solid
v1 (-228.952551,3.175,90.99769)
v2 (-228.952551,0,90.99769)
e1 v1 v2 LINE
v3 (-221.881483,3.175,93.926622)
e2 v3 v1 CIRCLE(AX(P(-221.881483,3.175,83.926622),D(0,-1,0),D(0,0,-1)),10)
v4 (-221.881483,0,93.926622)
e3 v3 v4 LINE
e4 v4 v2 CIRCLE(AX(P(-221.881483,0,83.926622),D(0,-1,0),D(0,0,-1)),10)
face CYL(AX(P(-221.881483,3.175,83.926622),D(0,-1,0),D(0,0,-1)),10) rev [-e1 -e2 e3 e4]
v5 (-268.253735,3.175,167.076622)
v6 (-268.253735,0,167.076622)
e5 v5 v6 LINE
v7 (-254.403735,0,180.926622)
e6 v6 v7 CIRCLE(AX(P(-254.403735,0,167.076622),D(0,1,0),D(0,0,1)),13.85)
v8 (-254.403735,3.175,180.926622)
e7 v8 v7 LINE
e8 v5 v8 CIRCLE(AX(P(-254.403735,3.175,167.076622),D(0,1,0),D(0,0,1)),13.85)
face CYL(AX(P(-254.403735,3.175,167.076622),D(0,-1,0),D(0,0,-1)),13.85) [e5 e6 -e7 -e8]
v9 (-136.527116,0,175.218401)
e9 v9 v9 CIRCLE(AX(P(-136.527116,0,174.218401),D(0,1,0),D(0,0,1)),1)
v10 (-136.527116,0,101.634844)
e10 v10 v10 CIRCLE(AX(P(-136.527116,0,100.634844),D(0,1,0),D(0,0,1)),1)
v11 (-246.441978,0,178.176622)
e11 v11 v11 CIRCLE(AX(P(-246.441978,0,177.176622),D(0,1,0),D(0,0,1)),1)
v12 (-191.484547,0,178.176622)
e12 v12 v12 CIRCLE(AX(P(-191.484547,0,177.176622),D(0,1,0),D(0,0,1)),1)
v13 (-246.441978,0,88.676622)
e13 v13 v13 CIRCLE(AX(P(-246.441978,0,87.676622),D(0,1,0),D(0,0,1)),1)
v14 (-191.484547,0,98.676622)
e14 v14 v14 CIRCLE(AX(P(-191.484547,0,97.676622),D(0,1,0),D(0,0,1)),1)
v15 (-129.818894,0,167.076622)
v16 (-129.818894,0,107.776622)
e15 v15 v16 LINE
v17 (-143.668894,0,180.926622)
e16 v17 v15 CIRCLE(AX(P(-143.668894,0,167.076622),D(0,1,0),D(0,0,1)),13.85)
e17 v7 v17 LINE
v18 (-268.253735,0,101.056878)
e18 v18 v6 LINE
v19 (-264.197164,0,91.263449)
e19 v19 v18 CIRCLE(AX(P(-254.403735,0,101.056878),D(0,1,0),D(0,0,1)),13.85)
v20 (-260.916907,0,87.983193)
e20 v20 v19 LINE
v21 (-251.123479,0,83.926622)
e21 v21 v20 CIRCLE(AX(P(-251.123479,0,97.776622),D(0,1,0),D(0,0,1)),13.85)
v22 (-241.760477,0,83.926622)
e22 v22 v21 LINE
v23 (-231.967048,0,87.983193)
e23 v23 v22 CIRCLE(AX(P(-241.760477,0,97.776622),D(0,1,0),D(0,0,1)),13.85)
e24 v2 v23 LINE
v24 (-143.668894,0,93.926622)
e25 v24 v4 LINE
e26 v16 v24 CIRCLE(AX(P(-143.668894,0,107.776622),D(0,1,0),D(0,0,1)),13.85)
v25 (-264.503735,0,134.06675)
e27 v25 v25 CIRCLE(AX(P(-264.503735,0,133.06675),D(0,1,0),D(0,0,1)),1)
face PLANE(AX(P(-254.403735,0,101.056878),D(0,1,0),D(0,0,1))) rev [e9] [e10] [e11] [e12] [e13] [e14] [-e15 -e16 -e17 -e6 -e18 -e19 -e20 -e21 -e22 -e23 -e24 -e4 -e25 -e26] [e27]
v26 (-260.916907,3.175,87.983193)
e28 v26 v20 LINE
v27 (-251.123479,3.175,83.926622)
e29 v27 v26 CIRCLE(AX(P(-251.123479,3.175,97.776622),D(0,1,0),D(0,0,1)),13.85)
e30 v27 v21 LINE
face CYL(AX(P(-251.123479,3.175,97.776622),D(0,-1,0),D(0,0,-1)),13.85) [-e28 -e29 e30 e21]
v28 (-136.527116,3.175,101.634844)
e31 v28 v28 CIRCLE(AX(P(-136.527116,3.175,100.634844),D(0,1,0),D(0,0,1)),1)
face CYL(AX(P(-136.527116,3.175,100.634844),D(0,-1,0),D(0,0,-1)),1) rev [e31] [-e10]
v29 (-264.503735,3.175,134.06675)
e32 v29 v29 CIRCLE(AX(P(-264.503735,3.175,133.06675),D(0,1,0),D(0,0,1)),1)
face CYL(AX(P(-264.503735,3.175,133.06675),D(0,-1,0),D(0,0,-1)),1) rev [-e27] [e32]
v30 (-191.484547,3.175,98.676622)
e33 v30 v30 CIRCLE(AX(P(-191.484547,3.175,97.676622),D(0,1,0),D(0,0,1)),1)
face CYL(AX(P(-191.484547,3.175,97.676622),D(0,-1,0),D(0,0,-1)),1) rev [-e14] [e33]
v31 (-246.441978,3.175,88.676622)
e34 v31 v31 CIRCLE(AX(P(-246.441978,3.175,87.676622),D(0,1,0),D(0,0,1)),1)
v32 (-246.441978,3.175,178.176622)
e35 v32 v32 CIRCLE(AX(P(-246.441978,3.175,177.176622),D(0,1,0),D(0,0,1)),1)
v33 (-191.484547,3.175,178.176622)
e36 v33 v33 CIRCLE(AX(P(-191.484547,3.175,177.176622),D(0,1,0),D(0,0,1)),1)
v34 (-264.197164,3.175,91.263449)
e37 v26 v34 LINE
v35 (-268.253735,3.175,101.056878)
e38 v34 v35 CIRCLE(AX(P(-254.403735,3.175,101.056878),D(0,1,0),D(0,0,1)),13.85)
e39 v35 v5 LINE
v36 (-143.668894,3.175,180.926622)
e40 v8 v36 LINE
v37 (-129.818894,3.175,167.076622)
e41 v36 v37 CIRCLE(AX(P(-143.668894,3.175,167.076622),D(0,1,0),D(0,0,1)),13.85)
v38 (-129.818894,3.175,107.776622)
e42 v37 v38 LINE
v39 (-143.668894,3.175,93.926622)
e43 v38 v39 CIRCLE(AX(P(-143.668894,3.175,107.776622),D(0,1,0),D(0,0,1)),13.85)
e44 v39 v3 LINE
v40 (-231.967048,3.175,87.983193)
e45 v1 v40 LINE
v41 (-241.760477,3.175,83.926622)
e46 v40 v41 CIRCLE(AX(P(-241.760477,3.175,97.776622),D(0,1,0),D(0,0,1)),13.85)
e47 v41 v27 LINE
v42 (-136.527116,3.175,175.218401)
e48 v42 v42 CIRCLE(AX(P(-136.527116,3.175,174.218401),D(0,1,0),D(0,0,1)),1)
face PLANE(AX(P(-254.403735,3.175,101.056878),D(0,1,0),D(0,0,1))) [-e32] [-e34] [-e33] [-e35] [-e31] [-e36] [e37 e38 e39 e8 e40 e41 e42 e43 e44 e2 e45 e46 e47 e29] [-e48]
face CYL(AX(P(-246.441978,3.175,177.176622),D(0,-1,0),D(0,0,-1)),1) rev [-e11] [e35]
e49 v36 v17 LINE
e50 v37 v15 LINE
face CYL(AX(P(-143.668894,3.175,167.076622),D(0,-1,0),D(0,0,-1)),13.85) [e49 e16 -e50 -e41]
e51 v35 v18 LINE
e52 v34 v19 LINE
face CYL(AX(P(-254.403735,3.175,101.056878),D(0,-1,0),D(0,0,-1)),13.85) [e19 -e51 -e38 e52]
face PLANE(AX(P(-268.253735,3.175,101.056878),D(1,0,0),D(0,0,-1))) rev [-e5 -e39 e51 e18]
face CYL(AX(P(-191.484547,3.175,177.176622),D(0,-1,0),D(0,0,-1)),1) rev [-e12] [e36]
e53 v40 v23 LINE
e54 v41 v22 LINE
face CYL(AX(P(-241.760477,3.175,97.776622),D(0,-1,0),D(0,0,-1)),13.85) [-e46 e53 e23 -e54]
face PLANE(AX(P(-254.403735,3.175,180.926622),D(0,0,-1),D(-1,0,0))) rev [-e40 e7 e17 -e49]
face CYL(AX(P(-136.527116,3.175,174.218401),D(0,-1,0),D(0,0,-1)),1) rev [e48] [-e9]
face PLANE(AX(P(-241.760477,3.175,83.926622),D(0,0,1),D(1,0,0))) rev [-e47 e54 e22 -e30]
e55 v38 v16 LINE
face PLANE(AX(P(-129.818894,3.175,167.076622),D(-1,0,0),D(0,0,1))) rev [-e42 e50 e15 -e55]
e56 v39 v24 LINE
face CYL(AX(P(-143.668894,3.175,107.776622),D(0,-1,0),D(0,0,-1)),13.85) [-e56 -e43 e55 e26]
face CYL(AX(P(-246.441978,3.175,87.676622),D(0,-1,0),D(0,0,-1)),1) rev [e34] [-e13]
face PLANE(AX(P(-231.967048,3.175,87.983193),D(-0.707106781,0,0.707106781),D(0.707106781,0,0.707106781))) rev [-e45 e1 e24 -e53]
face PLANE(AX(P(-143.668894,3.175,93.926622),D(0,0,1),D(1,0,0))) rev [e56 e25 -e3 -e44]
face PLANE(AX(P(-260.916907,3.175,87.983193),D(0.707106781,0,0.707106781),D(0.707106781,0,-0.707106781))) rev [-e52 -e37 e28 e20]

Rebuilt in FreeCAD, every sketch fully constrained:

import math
import FreeCAD as App
import Part
import Sketcher

doc = App.newDocument("Part")
body = doc.addObject("PartDesign::Body", "Body")

# Sketch on XZ plane
sketch1 = body.newObject("Sketcher::SketchObject", "Sketch")
sketch1.AttachmentSupport = (doc.getObject("XZ_Plane"), [""])
sketch1.MapMode = "FlatFace"
sketch1.addGeometry([
    Part.LineSegment(App.Vector(-268.3, 101.1, 0), App.Vector(-268.3, 167.1, 0)),  # 0
    Part.ArcOfCircle(Part.Circle(App.Vector(-254.4, 167.1, 0), App.Vector(0, 0, 1), 13.8), math.radians(90), math.radians(180)),  # 1
    Part.LineSegment(App.Vector(-254.4, 180.9, 0), App.Vector(-143.7, 180.9, 0)),  # 2
    Part.ArcOfCircle(Part.Circle(App.Vector(-143.7, 167.1, 0), App.Vector(0, 0, 1), 13.8), math.radians(0), math.radians(90)),  # 3
    Part.LineSegment(App.Vector(-129.8, 167.1, 0), App.Vector(-129.8, 107.8, 0)),  # 4
    Part.ArcOfCircle(Part.Circle(App.Vector(-143.7, 107.8, 0), App.Vector(0, 0, 1), 13.8), math.radians(-90), math.radians(0)),  # 5
    Part.LineSegment(App.Vector(-143.7, 93.9, 0), App.Vector(-221.9, 93.9, 0)),  # 6
    Part.ArcOfCircle(Part.Circle(App.Vector(-221.9, 83.9, 0), App.Vector(0, 0, 1), 10), math.radians(90), math.radians(135)),  # 7
    Part.LineSegment(App.Vector(-229, 91, 0), App.Vector(-232, 88, 0)),  # 8
    Part.ArcOfCircle(Part.Circle(App.Vector(-241.8, 97.8, 0), App.Vector(0, 0, 1), 13.9), math.radians(-90), math.radians(-45)),  # 9
    Part.LineSegment(App.Vector(-241.8, 83.9, 0), App.Vector(-251.1, 83.9, 0)),  # 10
    Part.ArcOfCircle(Part.Circle(App.Vector(-251.1, 97.8, 0), App.Vector(0, 0, 1), 13.8), math.radians(-135), math.radians(-90)),  # 11
    Part.LineSegment(App.Vector(-260.9, 88, 0), App.Vector(-264.2, 91.3, 0)),  # 12
    Part.ArcOfCircle(Part.Circle(App.Vector(-254.4, 101.1, 0), App.Vector(0, 0, 1), 13.8), math.radians(-180), math.radians(-135)),  # 13
    Part.Circle(App.Vector(-246.4, 177.2, 0), App.Vector(0, 0, 1), 1),  # 14
    Part.Circle(App.Vector(-264.5, 133.1, 0), App.Vector(0, 0, 1), 1),  # 15
    Part.Circle(App.Vector(-191.5, 177.2, 0), App.Vector(0, 0, 1), 1),  # 16
    Part.Circle(App.Vector(-136.5, 174.2, 0), App.Vector(0, 0, 1), 1),  # 17
    Part.Circle(App.Vector(-246.4, 87.7, 0), App.Vector(0, 0, 1), 1),  # 18
    Part.Circle(App.Vector(-191.5, 97.7, 0), App.Vector(0, 0, 1), 1),  # 19
    Part.Circle(App.Vector(-136.5, 100.6, 0), App.Vector(0, 0, 1), 1),  # 20
], False)
sketch1.addConstraint([
    Sketcher.Constraint("Tangent", 0, 2, 1, 2),
    Sketcher.Constraint("Tangent", 1, 1, 2, 1),
    Sketcher.Constraint("Tangent", 2, 2, 3, 2),
    Sketcher.Constraint("Tangent", 3, 1, 4, 1),
    Sketcher.Constraint("Tangent", 4, 2, 5, 2),
    Sketcher.Constraint("Tangent", 5, 1, 6, 1),
    Sketcher.Constraint("Tangent", 6, 2, 7, 1),
    Sketcher.Constraint("Tangent", 7, 2, 8, 1),
    Sketcher.Constraint("Tangent", 8, 2, 9, 2),
    Sketcher.Constraint("Tangent", 9, 1, 10, 1),
    Sketcher.Constraint("Tangent", 10, 2, 11, 2),
    Sketcher.Constraint("Tangent", 11, 1, 12, 1),
    Sketcher.Constraint("Tangent", 12, 2, 13, 2),
    Sketcher.Constraint("Tangent", 13, 1, 0, 1),
    Sketcher.Constraint("Vertical", 0),
    Sketcher.Constraint("Horizontal", 2),
    Sketcher.Constraint("Vertical", 4),
    Sketcher.Constraint("Horizontal", 6),
    Sketcher.Constraint("Horizontal", 10),
    Sketcher.Constraint("Equal", 1, 3),
    Sketcher.Constraint("Equal", 3, 5),
    Sketcher.Constraint("Equal", 5, 9),
    Sketcher.Constraint("Equal", 9, 11),
    Sketcher.Constraint("Equal", 11, 13),
    Sketcher.Constraint("Equal", 14, 15),
    Sketcher.Constraint("Equal", 15, 16),
    Sketcher.Constraint("Equal", 16, 17),
    Sketcher.Constraint("Equal", 17, 18),
    Sketcher.Constraint("Equal", 18, 19),
    Sketcher.Constraint("Equal", 19, 20),
    Sketcher.Constraint("Perpendicular", 8, 12),
    Sketcher.Constraint("Horizontal", 14, 3, 16, 3),
    Sketcher.Constraint("Horizontal", 7, 3, 9, 1),
    Sketcher.Constraint("Horizontal", 8, 2, 11, 1),
    Sketcher.Constraint("Vertical", 14, 3, 18, 3),
    Sketcher.Constraint("Vertical", 16, 3, 19, 3),
    Sketcher.Constraint("Vertical", 17, 3, 20, 3),
    Sketcher.Constraint("Diameter", 14, 2.0),
    Sketcher.Constraint("Radius", 7, 10.0),
    Sketcher.Constraint("Radius", 1, 13.85),
    Sketcher.Constraint("DistanceY", 4, 2, 4, 1, 59.3),
    Sketcher.Constraint("DistanceY", 18, 3, 19, 3, 10.0),
    Sketcher.Constraint("DistanceY", 1, 3, 14, 3, 10.1),
    Sketcher.Constraint("DistanceX", 15, 3, 13, 3, 10.1),
    Sketcher.Constraint("DistanceY", 18, 3, 11, 3, 10.1),
    Sketcher.Constraint("DistanceX", 2, 1, 2, 2, 110.73484),
    Sketcher.Constraint("DistanceX", 6, 2, 6, 1, 78.212589),
    Sketcher.Constraint("DistanceY", -1, 1, 17, 3, 174.218401),
    Sketcher.Constraint("DistanceX", 14, 3, 9, 3, 4.681501),
    Sketcher.Constraint("DistanceX", 11, 3, 14, 3, 4.681501),
    Sketcher.Constraint("DistanceX", 11, 3, -1, 1, 251.123479),
    Sketcher.Constraint("DistanceY", -1, 1, 13, 3, 101.056878),
    Sketcher.Constraint("DistanceY", -1, 1, 15, 3, 133.06675),
    Sketcher.Constraint("DistanceX", 14, 3, 16, 3, 54.957431),
    Sketcher.Constraint("DistanceX", 3, 3, 17, 3, 7.141778),
    Sketcher.Constraint("DistanceY", 20, 3, 5, 3, 7.141778),
])
pad1 = body.newObject("PartDesign::Pad", "Pad")
pad1.Profile = sketch1
pad1.Length = 3.175
pad1.Reversed = True

doc.recompute()
